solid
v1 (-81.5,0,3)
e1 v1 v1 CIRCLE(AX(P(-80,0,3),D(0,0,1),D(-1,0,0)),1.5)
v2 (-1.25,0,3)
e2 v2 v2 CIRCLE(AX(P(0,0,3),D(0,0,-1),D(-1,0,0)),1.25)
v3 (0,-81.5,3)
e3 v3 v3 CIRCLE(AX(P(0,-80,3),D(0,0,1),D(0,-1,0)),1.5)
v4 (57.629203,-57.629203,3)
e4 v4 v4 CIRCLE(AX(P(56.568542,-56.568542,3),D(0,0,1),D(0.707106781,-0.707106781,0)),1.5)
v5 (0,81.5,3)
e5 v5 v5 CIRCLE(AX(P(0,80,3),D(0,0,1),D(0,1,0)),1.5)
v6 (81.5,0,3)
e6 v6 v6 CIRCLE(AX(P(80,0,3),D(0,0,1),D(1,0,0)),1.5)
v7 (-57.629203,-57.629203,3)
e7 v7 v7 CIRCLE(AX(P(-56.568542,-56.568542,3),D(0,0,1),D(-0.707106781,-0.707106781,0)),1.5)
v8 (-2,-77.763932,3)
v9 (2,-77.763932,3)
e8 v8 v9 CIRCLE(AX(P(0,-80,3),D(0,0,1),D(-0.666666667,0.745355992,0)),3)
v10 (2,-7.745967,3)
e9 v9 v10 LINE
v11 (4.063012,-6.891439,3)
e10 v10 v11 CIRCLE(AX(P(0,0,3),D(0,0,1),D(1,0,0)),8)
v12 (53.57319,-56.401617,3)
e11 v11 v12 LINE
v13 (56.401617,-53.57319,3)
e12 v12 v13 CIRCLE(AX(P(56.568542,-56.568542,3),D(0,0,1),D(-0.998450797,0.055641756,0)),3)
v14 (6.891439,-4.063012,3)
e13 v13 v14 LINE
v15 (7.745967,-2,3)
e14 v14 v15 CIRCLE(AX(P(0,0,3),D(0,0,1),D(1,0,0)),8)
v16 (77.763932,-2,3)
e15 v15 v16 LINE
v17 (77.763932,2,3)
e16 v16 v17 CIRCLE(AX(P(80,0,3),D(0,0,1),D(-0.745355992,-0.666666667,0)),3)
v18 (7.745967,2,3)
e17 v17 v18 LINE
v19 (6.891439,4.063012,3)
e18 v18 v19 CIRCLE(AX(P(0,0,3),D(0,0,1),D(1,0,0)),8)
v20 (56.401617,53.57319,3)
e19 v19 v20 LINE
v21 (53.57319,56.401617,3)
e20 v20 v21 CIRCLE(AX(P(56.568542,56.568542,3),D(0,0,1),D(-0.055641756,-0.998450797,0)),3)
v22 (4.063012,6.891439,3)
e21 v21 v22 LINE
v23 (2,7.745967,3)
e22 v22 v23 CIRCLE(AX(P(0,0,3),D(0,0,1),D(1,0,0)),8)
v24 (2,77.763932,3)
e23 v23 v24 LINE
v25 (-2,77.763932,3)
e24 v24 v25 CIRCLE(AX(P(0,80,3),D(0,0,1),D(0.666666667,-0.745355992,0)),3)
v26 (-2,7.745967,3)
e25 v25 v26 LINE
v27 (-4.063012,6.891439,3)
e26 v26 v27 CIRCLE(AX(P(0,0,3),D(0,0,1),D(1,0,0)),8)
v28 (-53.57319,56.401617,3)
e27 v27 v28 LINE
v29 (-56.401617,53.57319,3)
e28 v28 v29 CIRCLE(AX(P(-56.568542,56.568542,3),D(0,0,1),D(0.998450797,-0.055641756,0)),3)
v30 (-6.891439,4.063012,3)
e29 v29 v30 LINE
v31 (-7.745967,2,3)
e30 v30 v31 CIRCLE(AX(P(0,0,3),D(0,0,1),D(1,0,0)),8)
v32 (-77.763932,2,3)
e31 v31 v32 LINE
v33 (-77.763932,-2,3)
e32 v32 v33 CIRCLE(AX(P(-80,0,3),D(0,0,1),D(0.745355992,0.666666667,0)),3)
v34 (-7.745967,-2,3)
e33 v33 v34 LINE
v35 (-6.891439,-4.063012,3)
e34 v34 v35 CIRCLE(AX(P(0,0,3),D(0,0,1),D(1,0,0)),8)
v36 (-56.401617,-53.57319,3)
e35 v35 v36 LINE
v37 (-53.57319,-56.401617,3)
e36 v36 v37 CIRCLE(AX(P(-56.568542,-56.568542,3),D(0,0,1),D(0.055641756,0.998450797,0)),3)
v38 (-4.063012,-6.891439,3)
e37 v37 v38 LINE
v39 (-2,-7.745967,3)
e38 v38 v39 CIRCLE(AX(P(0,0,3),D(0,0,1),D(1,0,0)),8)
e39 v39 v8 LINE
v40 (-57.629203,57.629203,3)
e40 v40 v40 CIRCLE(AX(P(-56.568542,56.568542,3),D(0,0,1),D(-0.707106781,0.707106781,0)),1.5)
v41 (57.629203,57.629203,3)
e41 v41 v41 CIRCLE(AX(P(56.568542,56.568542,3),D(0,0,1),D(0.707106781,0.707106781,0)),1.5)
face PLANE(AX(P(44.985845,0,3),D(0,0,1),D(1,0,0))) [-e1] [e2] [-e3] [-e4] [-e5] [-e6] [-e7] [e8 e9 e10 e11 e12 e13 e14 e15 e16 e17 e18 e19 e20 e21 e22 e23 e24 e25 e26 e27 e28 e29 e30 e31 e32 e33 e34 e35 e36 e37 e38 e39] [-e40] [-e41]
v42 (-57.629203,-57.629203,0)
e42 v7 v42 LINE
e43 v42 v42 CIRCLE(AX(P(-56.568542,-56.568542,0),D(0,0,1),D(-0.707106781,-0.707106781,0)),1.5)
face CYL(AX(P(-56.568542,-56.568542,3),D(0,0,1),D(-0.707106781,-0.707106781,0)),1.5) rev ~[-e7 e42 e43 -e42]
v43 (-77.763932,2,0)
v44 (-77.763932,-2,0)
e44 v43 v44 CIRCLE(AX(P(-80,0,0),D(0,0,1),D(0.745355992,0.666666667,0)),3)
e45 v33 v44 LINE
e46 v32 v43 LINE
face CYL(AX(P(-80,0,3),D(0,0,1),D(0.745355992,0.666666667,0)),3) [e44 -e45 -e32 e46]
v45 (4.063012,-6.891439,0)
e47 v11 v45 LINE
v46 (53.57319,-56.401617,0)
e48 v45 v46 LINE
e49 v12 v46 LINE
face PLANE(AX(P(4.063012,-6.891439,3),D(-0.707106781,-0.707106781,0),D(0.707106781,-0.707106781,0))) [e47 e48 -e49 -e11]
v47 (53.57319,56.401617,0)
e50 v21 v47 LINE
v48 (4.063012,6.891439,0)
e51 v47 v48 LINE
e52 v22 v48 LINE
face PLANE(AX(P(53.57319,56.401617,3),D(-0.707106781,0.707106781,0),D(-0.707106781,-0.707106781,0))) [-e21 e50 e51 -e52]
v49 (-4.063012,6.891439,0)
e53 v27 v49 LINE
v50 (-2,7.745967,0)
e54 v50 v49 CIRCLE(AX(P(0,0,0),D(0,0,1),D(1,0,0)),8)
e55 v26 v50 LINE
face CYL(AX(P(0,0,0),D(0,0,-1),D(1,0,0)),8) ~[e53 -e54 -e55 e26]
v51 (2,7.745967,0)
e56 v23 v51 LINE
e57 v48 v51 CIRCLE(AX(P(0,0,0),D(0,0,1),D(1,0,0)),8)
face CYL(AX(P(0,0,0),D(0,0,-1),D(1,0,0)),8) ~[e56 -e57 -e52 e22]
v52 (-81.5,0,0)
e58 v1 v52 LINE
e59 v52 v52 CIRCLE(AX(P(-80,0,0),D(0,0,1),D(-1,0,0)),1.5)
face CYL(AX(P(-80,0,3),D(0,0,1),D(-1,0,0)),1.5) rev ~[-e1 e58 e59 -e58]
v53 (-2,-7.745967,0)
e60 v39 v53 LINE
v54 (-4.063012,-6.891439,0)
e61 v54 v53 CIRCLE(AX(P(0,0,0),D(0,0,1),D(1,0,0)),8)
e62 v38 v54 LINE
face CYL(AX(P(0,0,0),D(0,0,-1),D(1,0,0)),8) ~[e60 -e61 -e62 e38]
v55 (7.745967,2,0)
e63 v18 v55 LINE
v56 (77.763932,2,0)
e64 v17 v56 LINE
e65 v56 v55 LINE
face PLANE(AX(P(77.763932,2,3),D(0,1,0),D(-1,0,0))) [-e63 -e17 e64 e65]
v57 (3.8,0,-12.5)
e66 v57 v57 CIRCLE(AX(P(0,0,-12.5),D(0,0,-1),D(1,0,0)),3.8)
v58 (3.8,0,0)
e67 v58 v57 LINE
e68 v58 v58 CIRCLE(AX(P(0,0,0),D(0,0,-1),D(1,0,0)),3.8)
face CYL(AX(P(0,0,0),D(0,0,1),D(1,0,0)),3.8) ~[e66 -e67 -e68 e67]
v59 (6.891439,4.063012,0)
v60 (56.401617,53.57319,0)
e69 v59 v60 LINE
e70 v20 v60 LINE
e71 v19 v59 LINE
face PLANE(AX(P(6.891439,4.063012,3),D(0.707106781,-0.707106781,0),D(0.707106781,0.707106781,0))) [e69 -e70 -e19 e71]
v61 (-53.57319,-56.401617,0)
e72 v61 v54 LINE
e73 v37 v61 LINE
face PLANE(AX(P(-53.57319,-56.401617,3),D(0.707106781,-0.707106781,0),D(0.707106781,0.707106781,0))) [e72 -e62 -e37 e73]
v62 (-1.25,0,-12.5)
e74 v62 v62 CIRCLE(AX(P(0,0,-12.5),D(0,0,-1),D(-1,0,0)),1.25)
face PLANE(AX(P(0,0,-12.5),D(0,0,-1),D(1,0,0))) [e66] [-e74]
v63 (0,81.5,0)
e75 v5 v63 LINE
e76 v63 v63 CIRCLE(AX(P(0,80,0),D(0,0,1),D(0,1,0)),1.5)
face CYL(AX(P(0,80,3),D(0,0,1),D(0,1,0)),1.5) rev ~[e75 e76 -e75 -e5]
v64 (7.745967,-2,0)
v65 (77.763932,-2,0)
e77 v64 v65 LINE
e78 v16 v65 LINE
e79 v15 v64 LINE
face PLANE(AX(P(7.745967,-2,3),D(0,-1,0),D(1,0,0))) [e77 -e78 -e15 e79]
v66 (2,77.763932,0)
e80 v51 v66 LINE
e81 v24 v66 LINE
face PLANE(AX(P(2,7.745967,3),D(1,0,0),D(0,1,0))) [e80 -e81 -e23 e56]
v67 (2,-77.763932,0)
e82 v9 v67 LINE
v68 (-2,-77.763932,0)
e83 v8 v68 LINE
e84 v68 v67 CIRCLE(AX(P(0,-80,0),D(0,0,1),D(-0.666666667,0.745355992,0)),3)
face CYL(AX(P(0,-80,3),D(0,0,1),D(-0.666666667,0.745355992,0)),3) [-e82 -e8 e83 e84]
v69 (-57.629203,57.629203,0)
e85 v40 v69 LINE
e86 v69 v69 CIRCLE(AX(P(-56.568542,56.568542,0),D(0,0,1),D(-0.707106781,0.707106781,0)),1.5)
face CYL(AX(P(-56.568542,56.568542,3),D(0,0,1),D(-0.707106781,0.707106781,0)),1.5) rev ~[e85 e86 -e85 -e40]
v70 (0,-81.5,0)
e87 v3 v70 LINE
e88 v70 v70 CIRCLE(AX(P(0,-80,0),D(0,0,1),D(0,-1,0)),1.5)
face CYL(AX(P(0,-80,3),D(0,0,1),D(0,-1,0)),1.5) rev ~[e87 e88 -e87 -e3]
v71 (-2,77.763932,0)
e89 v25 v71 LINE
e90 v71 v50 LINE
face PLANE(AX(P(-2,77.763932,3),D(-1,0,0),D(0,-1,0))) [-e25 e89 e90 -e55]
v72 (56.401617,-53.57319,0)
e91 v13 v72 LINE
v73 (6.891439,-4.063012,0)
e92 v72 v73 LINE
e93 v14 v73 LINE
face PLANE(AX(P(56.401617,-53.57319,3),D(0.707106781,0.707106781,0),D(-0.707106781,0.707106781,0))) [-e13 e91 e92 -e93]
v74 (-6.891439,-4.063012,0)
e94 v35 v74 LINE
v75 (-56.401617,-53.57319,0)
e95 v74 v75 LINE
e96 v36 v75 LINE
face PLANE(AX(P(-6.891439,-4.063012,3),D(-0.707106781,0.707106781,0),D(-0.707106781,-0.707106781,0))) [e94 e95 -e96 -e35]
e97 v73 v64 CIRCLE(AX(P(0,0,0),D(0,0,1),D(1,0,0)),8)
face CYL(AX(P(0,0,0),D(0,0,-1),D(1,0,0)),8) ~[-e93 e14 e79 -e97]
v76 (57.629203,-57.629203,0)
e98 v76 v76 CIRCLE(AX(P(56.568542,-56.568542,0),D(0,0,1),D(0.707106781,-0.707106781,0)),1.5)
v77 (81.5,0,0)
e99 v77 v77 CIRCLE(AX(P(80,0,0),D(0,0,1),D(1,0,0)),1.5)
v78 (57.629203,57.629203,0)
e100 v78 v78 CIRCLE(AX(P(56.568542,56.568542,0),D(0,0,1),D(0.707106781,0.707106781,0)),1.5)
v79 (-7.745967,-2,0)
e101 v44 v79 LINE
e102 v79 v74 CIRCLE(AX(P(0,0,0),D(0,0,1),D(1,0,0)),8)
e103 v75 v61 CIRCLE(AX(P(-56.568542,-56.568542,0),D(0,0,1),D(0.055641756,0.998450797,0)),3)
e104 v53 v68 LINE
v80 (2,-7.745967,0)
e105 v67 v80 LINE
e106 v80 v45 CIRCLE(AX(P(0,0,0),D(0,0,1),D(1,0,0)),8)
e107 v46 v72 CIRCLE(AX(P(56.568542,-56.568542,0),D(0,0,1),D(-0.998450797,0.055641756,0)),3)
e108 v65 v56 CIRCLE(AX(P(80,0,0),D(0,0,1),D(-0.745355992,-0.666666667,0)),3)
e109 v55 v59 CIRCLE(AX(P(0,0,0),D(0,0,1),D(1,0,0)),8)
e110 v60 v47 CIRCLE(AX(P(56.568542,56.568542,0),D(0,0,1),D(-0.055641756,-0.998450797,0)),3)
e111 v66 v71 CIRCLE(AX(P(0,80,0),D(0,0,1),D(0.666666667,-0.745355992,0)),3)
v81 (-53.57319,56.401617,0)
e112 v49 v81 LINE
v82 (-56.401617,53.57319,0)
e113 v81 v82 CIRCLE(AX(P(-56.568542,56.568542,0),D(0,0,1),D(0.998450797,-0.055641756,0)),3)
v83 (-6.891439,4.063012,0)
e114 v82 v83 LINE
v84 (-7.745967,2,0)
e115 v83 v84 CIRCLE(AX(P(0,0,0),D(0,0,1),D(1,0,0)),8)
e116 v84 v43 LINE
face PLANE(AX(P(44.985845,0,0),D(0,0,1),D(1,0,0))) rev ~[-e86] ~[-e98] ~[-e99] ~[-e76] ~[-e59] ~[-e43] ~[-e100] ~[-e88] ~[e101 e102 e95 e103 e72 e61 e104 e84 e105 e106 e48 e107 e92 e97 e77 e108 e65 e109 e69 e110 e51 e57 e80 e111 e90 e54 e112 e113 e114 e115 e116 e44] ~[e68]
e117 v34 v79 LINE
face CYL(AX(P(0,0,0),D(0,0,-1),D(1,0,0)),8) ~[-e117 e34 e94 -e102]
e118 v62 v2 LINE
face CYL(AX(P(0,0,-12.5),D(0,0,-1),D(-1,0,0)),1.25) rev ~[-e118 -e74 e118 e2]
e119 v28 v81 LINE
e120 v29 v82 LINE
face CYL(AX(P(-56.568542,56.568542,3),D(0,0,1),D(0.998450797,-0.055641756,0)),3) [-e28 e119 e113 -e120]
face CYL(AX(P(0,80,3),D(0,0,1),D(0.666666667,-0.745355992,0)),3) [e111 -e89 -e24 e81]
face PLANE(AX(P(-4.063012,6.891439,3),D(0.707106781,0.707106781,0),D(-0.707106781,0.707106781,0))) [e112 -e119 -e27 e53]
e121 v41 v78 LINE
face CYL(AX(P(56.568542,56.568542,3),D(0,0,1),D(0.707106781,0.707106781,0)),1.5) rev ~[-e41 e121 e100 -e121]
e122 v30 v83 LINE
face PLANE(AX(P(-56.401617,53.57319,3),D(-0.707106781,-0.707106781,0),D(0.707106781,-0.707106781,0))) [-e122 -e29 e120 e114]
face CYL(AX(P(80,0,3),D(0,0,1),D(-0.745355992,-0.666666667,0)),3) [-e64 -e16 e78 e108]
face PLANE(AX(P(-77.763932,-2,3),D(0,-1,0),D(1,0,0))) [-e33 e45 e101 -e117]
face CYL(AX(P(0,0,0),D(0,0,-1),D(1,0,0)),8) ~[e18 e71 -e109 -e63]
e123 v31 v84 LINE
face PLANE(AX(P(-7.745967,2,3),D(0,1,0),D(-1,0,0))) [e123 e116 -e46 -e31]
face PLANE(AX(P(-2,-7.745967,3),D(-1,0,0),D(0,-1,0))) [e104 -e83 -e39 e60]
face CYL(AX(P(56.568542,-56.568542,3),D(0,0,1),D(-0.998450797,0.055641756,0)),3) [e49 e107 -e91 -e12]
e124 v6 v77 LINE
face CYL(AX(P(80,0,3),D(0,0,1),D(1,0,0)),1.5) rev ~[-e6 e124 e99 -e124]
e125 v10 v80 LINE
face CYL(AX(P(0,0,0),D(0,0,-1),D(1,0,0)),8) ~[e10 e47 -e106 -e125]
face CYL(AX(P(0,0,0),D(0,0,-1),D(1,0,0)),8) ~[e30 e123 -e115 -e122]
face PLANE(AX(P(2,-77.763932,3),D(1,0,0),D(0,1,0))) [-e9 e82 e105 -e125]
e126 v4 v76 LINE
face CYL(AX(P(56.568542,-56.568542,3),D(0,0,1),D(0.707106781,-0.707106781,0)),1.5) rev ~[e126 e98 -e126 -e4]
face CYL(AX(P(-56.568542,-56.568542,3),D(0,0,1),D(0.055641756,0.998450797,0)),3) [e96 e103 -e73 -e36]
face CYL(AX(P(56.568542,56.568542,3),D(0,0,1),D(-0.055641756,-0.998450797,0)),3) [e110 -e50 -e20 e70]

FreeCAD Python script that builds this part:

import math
import FreeCAD as App
import Part
import Sketcher

V = App.Vector

doc = App.newDocument("Part")
params = doc.addObject("Spreadsheet::Sheet", "Params")
for row, (alias, value) in enumerate([
    ("sketch1_diameter", "16 mm"),
    ("pad1_length", "3 mm"),
    ("sketch2_diameter", "3 mm"),
    ("sketch2_radius", "8 mm"),
    ("sketch2_radius2", "3 mm"),
    ("pad2_length", "3 mm"),
    ("sketch3_diameter", "7.6 mm"),
    ("pad3_length", "12.5 mm"),
    ("sketch4_diameter", "2.5 mm"),
], start=1):
    params.set(f"A{row}", alias)
    params.set(f"B{row}", "=" + value)
    params.setAlias(f"B{row}", alias)

body = doc.addObject("PartDesign::Body", "Body")

# Sketch on XY plane
sketch1 = body.newObject("Sketcher::SketchObject", "Sketch")
sketch1.AttachmentSupport = (doc.getObject("XY_Plane"), [""])
sketch1.MapMode = "FlatFace"
sketch1.addGeometry(Part.Circle(V(0, 0, 0), V(0, 0, 1), 8), False)
sketch1.addConstraint(Sketcher.Constraint("Coincident", 0, 3, -1, 1))
sketch1.addConstraint(Sketcher.Constraint("Diameter", 0, 16.0))
sketch1.setExpression("Constraints[1]", "Params.sketch1_diameter")
pad1 = body.newObject("PartDesign::Pad", "Pad")
pad1.Profile = sketch1
pad1.setExpression("Length", "Params.pad1_length")

# Sketch on XY plane
sketch2 = body.newObject("Sketcher::SketchObject", "Sketch001")
sketch2.AttachmentSupport = (doc.getObject("XY_Plane"), [""])
sketch2.MapMode = "FlatFace"
sketch2.AttachmentOffset = App.Placement(V(0, 0, 3), App.Rotation())
sketch2.addGeometry(Part.ArcOfCircle(Part.Circle(V(0, 0, 0), V(0, 0, 1), 8), math.radians(-14), math.radians(14)), False)
sketch2.addGeometry(Part.LineSegment(V(7.7, -2, 0), V(77.8, -2, 0)), False)
sketch2.addGeometry(Part.ArcOfCircle(Part.Circle(V(80, 0, 0), V(0, 0, 1), 3), math.radians(-138), math.radians(138)), False)
sketch2.addGeometry(Part.LineSegment(V(77.8, 2, 0), V(7.7, 2, 0)), False)
sketch2.addGeometry(Part.Circle(V(80, 0, 0), V(0, 0, 1), 1.5), False)
sketch2.addConstraint(Sketcher.Constraint("Coincident", 0, 1, 1, 1))
sketch2.addConstraint(Sketcher.Constraint("Coincident", 1, 2, 2, 1))
sketch2.addConstraint(Sketcher.Constraint("Coincident", 2, 2, 3, 1))
sketch2.addConstraint(Sketcher.Constraint("Coincident", 3, 2, 0, 2))
sketch2.addConstraint(Sketcher.Constraint("Horizontal", 1))
sketch2.addConstraint(Sketcher.Constraint("Horizontal", 3))
sketch2.addConstraint(Sketcher.Constraint("Coincident", 0, 3, -1, 1))
sketch2.addConstraint(Sketcher.Constraint("Coincident", 4, 3, 2, 3))
sketch2.addConstraint(Sketcher.Constraint("Symmetric", 1, 2, 2, 2, -1))
sketch2.addConstraint(Sketcher.Constraint("Diameter", 4, 3.0))
sketch2.addConstraint(Sketcher.Constraint("Radius", 0, 8.0))
sketch2.addConstraint(Sketcher.Constraint("Radius", 2, 3.0))
sketch2.addConstraint(Sketcher.Constraint("DistanceX", -1, 1, 2, 3, 80.0))
sketch2.addConstraint(Sketcher.Constraint("DistanceY", 0, 1, -1, 1, 2.0))
sketch2.setExpression("Constraints[9]", "Params.sketch2_diameter")
sketch2.setExpression("Constraints[10]", "Params.sketch2_radius")
sketch2.setExpression("Constraints[11]", "Params.sketch2_radius2")
pad2 = body.newObject("PartDesign::Pad", "Pad001")
pad2.Profile = sketch2
pad2.setExpression("Length", "Params.pad2_length")
pad2.Reversed = True
doc.recompute()

polarpattern = body.newObject("PartDesign::PolarPattern", "PolarPattern")
polarpattern.Originals = [pad2]
polarpattern.Axis = (doc.getObject("Z_Axis"), [""])
polarpattern.Angle = 360
polarpattern.Occurrences = 8
body.Tip = polarpattern

# Sketch on XY plane
sketch3 = body.newObject("Sketcher::SketchObject", "Sketch002")
sketch3.AttachmentSupport = (doc.getObject("XY_Plane"), [""])
sketch3.MapMode = "FlatFace"
sketch3.addGeometry(Part.Circle(V(0, 0, 0), V(0, 0, 1), 3.8), False)
sketch3.addConstraint(Sketcher.Constraint("Coincident", 0, 3, -1, 1))
sketch3.addConstraint(Sketcher.Constraint("Diameter", 0, 7.6))
sketch3.setExpression("Constraints[1]", "Params.sketch3_diameter")
pad3 = body.newObject("PartDesign::Pad", "Pad002")
pad3.Profile = sketch3
pad3.setExpression("Length", "Params.pad3_length")
pad3.Reversed = True

# Sketch on XY plane
sketch4 = body.newObject("Sketcher::SketchObject", "Sketch003")
sketch4.AttachmentSupport = (doc.getObject("XY_Plane"), [""])
sketch4.MapMode = "FlatFace"
sketch4.AttachmentOffset = App.Placement(V(0, 0, -12.5), App.Rotation())
sketch4.addGeometry(Part.Circle(V(0, 0, 0), V(0, 0, 1), 1.2), False)
sketch4.addConstraint(Sketcher.Constraint("Coincident", 0, 3, -1, 1))
sketch4.addConstraint(Sketcher.Constraint("Diameter", 0, 2.5))
sketch4.setExpression("Constraints[1]", "Params.sketch4_diameter")
pocket1 = body.newObject("PartDesign::Pocket", "Pocket")
pocket1.Profile = sketch4
pocket1.Type = "ThroughAll"
pocket1.Reversed = True

doc.recompute()
